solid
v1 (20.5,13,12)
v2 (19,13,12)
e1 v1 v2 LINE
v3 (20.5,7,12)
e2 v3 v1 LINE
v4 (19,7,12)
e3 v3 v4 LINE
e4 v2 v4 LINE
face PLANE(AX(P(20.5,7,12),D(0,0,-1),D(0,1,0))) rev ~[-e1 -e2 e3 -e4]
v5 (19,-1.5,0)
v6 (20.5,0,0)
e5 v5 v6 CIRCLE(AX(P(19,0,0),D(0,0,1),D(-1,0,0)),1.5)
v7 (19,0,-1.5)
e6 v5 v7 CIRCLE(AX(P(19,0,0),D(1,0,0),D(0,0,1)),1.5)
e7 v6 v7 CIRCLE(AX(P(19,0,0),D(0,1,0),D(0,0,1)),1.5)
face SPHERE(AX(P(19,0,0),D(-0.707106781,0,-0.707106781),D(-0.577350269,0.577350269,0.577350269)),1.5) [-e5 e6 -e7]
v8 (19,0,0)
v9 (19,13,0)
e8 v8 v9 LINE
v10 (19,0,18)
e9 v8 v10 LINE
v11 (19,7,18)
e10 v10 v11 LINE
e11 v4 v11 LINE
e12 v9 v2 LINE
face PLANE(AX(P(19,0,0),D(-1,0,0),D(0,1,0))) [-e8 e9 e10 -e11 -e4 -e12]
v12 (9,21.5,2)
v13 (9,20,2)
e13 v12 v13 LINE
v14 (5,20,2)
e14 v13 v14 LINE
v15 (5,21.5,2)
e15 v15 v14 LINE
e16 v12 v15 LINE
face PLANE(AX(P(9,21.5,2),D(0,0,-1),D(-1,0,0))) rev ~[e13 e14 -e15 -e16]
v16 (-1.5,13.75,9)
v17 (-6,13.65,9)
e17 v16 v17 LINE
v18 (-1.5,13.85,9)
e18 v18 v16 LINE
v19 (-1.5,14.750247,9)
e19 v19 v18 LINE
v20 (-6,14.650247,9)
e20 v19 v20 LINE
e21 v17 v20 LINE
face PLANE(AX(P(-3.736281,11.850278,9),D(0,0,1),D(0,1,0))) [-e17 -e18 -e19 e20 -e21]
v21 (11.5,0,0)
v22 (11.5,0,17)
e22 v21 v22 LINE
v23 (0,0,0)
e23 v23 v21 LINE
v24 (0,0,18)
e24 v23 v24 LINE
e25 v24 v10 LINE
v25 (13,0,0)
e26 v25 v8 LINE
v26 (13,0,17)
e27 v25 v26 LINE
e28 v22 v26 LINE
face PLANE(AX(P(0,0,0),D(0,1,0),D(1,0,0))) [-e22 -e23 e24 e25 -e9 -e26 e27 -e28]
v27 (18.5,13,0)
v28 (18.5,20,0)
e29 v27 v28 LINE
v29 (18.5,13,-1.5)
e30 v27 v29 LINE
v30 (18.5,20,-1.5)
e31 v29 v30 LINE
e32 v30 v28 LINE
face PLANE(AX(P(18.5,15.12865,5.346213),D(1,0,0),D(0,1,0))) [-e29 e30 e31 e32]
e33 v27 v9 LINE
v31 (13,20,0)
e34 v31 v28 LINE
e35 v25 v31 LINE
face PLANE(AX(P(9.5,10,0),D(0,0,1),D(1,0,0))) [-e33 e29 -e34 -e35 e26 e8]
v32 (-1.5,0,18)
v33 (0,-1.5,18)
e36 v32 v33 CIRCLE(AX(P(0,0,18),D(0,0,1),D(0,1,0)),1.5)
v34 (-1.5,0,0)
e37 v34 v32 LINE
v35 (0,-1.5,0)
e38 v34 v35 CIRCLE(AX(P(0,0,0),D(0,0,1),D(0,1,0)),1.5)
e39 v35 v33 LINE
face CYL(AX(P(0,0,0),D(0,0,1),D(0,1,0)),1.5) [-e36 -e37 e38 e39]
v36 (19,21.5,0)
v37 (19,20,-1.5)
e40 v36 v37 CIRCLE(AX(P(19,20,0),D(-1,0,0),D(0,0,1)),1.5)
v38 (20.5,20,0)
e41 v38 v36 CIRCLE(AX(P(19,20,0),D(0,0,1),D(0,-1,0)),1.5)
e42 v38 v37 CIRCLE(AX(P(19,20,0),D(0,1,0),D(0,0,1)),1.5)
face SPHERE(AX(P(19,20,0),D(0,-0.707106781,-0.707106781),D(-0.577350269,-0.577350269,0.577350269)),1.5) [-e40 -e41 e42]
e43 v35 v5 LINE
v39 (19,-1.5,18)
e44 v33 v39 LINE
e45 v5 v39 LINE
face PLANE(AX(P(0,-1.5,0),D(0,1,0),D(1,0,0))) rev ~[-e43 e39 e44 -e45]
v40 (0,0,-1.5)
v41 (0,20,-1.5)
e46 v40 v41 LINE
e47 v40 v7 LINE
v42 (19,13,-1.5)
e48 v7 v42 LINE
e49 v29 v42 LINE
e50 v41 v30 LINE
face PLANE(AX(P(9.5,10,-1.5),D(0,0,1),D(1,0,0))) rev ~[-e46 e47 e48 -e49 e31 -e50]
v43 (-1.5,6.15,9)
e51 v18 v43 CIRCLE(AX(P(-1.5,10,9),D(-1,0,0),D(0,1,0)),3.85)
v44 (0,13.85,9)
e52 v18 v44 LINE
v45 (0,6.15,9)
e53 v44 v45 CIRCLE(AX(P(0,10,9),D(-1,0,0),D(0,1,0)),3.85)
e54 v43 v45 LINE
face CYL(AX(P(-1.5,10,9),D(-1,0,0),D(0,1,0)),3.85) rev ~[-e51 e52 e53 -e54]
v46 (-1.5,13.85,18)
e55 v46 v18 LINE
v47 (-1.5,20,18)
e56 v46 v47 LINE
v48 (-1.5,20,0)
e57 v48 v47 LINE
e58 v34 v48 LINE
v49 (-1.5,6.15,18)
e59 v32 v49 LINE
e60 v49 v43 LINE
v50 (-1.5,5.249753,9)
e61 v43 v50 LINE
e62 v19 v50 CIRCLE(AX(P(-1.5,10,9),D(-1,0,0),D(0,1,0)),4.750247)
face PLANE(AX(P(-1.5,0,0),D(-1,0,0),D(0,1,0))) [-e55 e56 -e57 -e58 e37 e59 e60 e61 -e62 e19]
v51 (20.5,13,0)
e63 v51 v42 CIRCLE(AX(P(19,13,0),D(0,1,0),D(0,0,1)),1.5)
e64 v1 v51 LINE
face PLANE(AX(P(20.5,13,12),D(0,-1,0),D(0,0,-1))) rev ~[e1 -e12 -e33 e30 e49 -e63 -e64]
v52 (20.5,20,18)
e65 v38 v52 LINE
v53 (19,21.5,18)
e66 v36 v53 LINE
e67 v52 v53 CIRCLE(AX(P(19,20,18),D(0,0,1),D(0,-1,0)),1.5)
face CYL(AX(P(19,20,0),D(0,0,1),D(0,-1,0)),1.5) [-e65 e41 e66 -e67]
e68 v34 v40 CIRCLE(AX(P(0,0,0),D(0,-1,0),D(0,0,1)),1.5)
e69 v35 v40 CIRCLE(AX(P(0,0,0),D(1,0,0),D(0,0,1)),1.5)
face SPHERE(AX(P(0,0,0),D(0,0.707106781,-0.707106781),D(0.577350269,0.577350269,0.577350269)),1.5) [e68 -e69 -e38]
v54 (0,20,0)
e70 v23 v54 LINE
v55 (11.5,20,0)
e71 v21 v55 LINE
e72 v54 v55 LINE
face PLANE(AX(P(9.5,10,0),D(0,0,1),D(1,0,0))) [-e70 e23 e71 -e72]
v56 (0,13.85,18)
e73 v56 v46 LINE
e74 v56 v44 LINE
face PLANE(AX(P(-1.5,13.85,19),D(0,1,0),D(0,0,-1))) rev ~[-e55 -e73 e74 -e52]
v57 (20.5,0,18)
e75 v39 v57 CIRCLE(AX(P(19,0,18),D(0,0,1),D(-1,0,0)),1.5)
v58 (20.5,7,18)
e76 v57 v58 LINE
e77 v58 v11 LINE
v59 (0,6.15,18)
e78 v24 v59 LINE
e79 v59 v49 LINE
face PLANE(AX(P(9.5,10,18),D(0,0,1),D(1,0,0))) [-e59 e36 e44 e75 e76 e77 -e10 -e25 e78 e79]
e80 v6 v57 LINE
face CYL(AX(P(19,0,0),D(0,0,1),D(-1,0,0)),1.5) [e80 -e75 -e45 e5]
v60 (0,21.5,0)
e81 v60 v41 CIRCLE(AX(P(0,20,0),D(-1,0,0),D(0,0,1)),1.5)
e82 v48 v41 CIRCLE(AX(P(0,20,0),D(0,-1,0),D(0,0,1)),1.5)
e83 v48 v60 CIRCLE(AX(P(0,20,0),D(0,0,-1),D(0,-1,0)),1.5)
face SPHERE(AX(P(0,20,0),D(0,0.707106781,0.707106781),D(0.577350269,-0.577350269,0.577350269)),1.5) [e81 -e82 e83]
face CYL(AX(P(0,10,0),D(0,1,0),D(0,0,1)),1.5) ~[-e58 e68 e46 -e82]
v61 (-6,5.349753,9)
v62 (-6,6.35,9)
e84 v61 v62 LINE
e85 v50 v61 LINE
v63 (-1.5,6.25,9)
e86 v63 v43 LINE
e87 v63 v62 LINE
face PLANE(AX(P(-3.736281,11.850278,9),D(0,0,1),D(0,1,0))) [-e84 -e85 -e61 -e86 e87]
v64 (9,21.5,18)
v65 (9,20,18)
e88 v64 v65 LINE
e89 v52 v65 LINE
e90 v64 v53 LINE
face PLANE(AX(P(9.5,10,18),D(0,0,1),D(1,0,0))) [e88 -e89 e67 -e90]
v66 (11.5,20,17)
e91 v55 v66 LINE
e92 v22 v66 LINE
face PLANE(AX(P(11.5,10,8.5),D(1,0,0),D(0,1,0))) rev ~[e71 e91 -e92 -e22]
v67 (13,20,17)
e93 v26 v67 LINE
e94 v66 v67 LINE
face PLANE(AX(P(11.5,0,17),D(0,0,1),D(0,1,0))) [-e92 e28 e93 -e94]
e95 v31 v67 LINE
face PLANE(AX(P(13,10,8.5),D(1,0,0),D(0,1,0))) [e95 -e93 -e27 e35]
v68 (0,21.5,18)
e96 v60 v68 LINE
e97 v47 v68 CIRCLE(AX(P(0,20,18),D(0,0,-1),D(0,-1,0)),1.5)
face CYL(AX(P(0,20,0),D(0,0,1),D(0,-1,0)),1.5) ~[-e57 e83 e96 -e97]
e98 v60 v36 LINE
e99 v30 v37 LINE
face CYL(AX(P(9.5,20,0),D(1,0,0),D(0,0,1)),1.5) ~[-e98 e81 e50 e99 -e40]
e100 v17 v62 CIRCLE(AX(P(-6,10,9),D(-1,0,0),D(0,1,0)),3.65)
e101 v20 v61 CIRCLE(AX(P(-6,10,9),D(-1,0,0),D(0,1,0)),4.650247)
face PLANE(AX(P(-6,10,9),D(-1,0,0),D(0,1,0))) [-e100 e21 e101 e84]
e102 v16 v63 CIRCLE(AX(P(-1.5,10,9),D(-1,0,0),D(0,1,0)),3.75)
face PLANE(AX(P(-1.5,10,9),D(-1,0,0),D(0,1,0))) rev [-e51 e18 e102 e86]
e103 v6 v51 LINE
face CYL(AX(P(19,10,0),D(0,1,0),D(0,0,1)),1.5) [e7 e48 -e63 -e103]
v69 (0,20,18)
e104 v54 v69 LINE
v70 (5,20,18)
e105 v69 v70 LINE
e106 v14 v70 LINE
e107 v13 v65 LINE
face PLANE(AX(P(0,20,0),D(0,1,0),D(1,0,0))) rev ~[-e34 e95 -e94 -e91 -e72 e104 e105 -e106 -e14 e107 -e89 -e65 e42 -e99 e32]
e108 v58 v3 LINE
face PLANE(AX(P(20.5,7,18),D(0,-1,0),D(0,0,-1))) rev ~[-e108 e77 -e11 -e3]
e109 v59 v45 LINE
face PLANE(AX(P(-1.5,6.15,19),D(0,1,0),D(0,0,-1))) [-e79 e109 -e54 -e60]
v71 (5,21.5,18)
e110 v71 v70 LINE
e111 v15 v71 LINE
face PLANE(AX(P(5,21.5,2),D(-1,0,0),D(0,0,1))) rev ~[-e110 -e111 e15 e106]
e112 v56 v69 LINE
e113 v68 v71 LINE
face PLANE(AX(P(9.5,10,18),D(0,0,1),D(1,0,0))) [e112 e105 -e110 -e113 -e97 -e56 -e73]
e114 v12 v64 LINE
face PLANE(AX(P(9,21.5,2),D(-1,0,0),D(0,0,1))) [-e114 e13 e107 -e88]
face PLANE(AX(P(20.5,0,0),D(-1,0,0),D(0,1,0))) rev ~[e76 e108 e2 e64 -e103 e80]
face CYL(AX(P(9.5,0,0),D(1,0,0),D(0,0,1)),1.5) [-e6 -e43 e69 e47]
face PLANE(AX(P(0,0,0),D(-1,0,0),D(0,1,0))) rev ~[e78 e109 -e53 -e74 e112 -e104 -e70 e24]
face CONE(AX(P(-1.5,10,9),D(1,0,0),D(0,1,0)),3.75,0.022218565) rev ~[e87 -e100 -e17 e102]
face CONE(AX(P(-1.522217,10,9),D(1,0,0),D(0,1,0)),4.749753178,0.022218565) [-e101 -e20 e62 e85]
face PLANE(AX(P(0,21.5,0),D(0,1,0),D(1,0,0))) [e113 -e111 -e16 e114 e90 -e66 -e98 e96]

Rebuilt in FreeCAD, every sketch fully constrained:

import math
import FreeCAD as App
import Part
import Sketcher

V = App.Vector
Q = App.Units.Quantity


def faces_at(feature, points):
    """Names of the faces that lie closest to the given points."""
    faces = feature.Shape.Faces
    near = lambda p: min(range(len(faces)), key=lambda i: faces[i].distToShape(Part.Vertex(*p))[0])
    return sorted({f"Face{near(p) + 1}" for p in points})


def add_polygon(sketch, points):
    """Adds a closed chain of lines whose ends are joined by coincident constraints."""
    first, n = sketch.GeometryCount, len(points)
    for a, b in zip(points, points[1:] + points[:1]):
        sketch.addGeometry(Part.LineSegment(App.Vector(*a, 0), App.Vector(*b, 0)), False)
    for i in range(n):
        sketch.addConstraint(Sketcher.Constraint("Coincident", first + i, 2, first + (i + 1) % n, 1))

doc = App.newDocument("Part")
body = doc.addObject("PartDesign::Body", "Body")

sketch1 = body.newObject("Sketcher::SketchObject", "Sketch")
sketch1.AttachmentSupport = (doc.getObject("XY_Plane"), [""])
sketch1.MapMode = "FlatFace"
sketch1.AttachmentOffset = App.Placement(V(0, 0, 9), App.Rotation())
add_polygon(sketch1, [(-1.5, 10), (-1.5, 13.75), (-6, 13.65), (-6, 10)])
sketch1.addGeometry(Part.LineSegment(V(-1.5, 10, 0), V(-6, 10, 0)), True)
sketch1.addConstraint([
    Sketcher.Constraint("Vertical", 0),
    Sketcher.Constraint("Vertical", 2),
    Sketcher.Constraint("Horizontal", 3),
    Sketcher.Constraint("Horizontal", 4),
    Sketcher.Constraint("Coincident", 4, 1, 3, 2),
    Sketcher.Constraint("Vertical", 1, 2, 4, 2),
    Sketcher.Constraint("DistanceX", 3, 1, 3, 2, Q("4.5 mm")),
    Sketcher.Constraint("DistanceX", 1, 2, -1, 1, Q("6 mm")),
    Sketcher.Constraint("DistanceY", -1, 1, 2, 2, Q("10 mm")),
    Sketcher.Constraint("DistanceY", 0, 1, 0, 2, Q("3.75 mm")),
    Sketcher.Constraint("DistanceY", 2, 2, 2, 1, Q("3.65 mm")),
])
revolution = body.newObject("PartDesign::Revolution", "Revolution")
revolution.Profile = sketch1
revolution.ReferenceAxis = (sketch1, ["Axis0"])
revolution.Angle = 180
doc.recompute()

thickness = body.newObject("PartDesign::Thickness", "Thickness")
thickness.Base = (revolution, faces_at(revolution, [
    (-3.75, 10, 9),
    (-3.75, 10, 9),
    (-6, 10, 7.175),
    (-1.5, 10, 7.125),
]))
thickness.Value = 1
thickness.Reversed = False
thickness.Join = "Arc"
body2 = doc.addObject("PartDesign::Body", "Body001")

sketch2 = body2.newObject("Sketcher::SketchObject", "Sketch001")
sketch2.AttachmentSupport = (doc.getObject("XY_Plane001"), [""])
sketch2.MapMode = "FlatFace"
add_polygon(sketch2, [(0, 20), (0, 0), (19, 0), (19, 20)])
sketch2.addConstraint([
    Sketcher.Constraint("Vertical", 0),
    Sketcher.Constraint("Horizontal", 1),
    Sketcher.Constraint("Vertical", 2),
    Sketcher.Constraint("Horizontal", 3),
    Sketcher.Constraint("Coincident", 0, 2, -1, 1),
    Sketcher.Constraint("DistanceX", 1, 1, 1, 2, Q("19 mm")),
    Sketcher.Constraint("DistanceY", 0, 2, 0, 1, Q("20 mm")),
])
pad1 = body2.newObject("PartDesign::Pad", "Pad")
pad1.Profile = sketch2
pad1.Length = 18
doc.recompute()

thickness2 = body2.newObject("PartDesign::Thickness", "Thickness001")
thickness2.Base = (pad1, faces_at(pad1, [(9.5, 10, 18)]))
thickness2.Value = 1.5
thickness2.Reversed = False
thickness2.Join = "Arc"

sketch3 = body2.newObject("Sketcher::SketchObject", "Sketch002")
sketch3.AttachmentSupport = (doc.getObject("YZ_Plane001"), [""])
sketch3.MapMode = "FlatFace"
sketch3.AttachmentOffset = App.Placement(V(0, 0, -1.5), App.Rotation())
sketch3.addGeometry([
    Part.ArcOfCircle(Part.Circle(V(10, 19, 0), V(0, 0, 1), 3.85), math.radians(0), math.radians(180)),
    Part.LineSegment(V(13.85, 19, 0), V(13.85, 9, 0)),
    Part.ArcOfCircle(Part.Circle(V(10, 9, 0), V(0, 0, 1), 3.85), math.radians(180), math.radians(360)),
    Part.LineSegment(V(6.15, 9, 0), V(6.15, 19, 0)),
], False)
sketch3.addConstraint([
    Sketcher.Constraint("Tangent", 0, 1, 1, 1),
    Sketcher.Constraint("Tangent", 1, 2, 2, 2),
    Sketcher.Constraint("Tangent", 2, 1, 3, 1),
    Sketcher.Constraint("Tangent", 3, 2, 0, 2),
    Sketcher.Constraint("Vertical", 1),
    Sketcher.Constraint("Vertical", 3),
    Sketcher.Constraint("DistanceY", 1, 2, 1, 1, Q("10 mm")),
    Sketcher.Constraint("Radius", 0, Q("3.85 mm")),
    Sketcher.Constraint("DistanceX", -1, 1, 0, 3, Q("10 mm")),
    Sketcher.Constraint("DistanceY", -1, 1, 0, 3, Q("19 mm")),
])
pocket1 = body2.newObject("PartDesign::Pocket", "Pocket")
pocket1.Profile = sketch3
pocket1.Length = 2
pocket1.Reversed = True

sketch4 = body2.newObject("Sketcher::SketchObject", "Sketch003")
sketch4.AttachmentSupport = (doc.getObject("XZ_Plane001"), [""])
sketch4.MapMode = "FlatFace"
sketch4.AttachmentOffset = App.Placement(V(0, 0, -21.5), App.Rotation())
add_polygon(sketch4, [(9, 20), (9, 2), (5, 2), (5, 20)])
sketch4.addConstraint([
    Sketcher.Constraint("Vertical", 0),
    Sketcher.Constraint("Horizontal", 1),
    Sketcher.Constraint("Vertical", 2),
    Sketcher.Constraint("Horizontal", 3),
    Sketcher.Constraint("DistanceX", 1, 2, 1, 1, Q("4 mm")),
    Sketcher.Constraint("DistanceY", 0, 2, 0, 1, Q("18 mm")),
    Sketcher.Constraint("DistanceX", -1, 1, 0, 2, Q("9 mm")),
    Sketcher.Constraint("DistanceY", -1, 1, 0, 2, Q("2 mm")),
])
pocket2 = body2.newObject("PartDesign::Pocket", "Pocket001")
pocket2.Profile = sketch4
pocket2.Length = 2
pocket2.Reversed = True

sketch5 = body2.newObject("Sketcher::SketchObject", "Sketch004")
sketch5.AttachmentSupport = (doc.getObject("YZ_Plane001"), [""])
sketch5.MapMode = "FlatFace"
sketch5.AttachmentOffset = App.Placement(V(0, 0, 11.5), App.Rotation())
add_polygon(sketch5, [(0, 17), (0, 0), (20, 0), (20, 17)])
sketch5.addConstraint([
    Sketcher.Constraint("Vertical", 0),
    Sketcher.Constraint("Horizontal", 1),
    Sketcher.Constraint("Vertical", 2),
    Sketcher.Constraint("Horizontal", 3),
    Sketcher.Constraint("Coincident", 0, 2, -1, 1),
    Sketcher.Constraint("DistanceX", 1, 1, 1, 2, Q("20 mm")),
    Sketcher.Constraint("DistanceY", 0, 2, 0, 1, Q("17 mm")),
])
pad2 = body2.newObject("PartDesign::Pad", "Pad001")
pad2.Profile = sketch5
pad2.Length = 1.5

sketch6 = body2.newObject("Sketcher::SketchObject", "Sketch005")
sketch6.AttachmentSupport = (doc.getObject("YZ_Plane001"), [""])
sketch6.MapMode = "FlatFace"
sketch6.AttachmentOffset = App.Placement(V(0, 0, 20.5), App.Rotation())
add_polygon(sketch6, [(20, 18), (7, 18), (7, 12), (13, 12), (13, -10.564874), (20, -10.564874)])
sketch6.addConstraint([
    Sketcher.Constraint("Horizontal", 0),
    Sketcher.Constraint("Vertical", 1),
    Sketcher.Constraint("Horizontal", 2),
    Sketcher.Constraint("Vertical", 3),
    Sketcher.Constraint("Horizontal", 4),
    Sketcher.Constraint("Vertical", 5),
    Sketcher.Constraint("Equal", 2, 1),
    Sketcher.Constraint("DistanceX", 0, 2, 0, 1, Q("13 mm")),
    Sketcher.Constraint("DistanceX", 2, 1, 2, 2, Q("6 mm")),
    Sketcher.Constraint("DistanceX", -1, 1, 0, 2, Q("7 mm")),
    Sketcher.Constraint("DistanceY", -1, 1, 0, 2, Q("18 mm")),
    Sketcher.Constraint("DistanceY", 3, 2, 3, 1, Q("22.564874 mm")),
])
pocket3 = body2.newObject("PartDesign::Pocket", "Pocket002")
pocket3.Profile = sketch6
pocket3.Length = 2
doc.recompute()

boolean = body2.newObject("PartDesign::Boolean", "Boolean")
boolean.Type = "Fuse"
boolean.addObjects([body])

doc.recompute()
